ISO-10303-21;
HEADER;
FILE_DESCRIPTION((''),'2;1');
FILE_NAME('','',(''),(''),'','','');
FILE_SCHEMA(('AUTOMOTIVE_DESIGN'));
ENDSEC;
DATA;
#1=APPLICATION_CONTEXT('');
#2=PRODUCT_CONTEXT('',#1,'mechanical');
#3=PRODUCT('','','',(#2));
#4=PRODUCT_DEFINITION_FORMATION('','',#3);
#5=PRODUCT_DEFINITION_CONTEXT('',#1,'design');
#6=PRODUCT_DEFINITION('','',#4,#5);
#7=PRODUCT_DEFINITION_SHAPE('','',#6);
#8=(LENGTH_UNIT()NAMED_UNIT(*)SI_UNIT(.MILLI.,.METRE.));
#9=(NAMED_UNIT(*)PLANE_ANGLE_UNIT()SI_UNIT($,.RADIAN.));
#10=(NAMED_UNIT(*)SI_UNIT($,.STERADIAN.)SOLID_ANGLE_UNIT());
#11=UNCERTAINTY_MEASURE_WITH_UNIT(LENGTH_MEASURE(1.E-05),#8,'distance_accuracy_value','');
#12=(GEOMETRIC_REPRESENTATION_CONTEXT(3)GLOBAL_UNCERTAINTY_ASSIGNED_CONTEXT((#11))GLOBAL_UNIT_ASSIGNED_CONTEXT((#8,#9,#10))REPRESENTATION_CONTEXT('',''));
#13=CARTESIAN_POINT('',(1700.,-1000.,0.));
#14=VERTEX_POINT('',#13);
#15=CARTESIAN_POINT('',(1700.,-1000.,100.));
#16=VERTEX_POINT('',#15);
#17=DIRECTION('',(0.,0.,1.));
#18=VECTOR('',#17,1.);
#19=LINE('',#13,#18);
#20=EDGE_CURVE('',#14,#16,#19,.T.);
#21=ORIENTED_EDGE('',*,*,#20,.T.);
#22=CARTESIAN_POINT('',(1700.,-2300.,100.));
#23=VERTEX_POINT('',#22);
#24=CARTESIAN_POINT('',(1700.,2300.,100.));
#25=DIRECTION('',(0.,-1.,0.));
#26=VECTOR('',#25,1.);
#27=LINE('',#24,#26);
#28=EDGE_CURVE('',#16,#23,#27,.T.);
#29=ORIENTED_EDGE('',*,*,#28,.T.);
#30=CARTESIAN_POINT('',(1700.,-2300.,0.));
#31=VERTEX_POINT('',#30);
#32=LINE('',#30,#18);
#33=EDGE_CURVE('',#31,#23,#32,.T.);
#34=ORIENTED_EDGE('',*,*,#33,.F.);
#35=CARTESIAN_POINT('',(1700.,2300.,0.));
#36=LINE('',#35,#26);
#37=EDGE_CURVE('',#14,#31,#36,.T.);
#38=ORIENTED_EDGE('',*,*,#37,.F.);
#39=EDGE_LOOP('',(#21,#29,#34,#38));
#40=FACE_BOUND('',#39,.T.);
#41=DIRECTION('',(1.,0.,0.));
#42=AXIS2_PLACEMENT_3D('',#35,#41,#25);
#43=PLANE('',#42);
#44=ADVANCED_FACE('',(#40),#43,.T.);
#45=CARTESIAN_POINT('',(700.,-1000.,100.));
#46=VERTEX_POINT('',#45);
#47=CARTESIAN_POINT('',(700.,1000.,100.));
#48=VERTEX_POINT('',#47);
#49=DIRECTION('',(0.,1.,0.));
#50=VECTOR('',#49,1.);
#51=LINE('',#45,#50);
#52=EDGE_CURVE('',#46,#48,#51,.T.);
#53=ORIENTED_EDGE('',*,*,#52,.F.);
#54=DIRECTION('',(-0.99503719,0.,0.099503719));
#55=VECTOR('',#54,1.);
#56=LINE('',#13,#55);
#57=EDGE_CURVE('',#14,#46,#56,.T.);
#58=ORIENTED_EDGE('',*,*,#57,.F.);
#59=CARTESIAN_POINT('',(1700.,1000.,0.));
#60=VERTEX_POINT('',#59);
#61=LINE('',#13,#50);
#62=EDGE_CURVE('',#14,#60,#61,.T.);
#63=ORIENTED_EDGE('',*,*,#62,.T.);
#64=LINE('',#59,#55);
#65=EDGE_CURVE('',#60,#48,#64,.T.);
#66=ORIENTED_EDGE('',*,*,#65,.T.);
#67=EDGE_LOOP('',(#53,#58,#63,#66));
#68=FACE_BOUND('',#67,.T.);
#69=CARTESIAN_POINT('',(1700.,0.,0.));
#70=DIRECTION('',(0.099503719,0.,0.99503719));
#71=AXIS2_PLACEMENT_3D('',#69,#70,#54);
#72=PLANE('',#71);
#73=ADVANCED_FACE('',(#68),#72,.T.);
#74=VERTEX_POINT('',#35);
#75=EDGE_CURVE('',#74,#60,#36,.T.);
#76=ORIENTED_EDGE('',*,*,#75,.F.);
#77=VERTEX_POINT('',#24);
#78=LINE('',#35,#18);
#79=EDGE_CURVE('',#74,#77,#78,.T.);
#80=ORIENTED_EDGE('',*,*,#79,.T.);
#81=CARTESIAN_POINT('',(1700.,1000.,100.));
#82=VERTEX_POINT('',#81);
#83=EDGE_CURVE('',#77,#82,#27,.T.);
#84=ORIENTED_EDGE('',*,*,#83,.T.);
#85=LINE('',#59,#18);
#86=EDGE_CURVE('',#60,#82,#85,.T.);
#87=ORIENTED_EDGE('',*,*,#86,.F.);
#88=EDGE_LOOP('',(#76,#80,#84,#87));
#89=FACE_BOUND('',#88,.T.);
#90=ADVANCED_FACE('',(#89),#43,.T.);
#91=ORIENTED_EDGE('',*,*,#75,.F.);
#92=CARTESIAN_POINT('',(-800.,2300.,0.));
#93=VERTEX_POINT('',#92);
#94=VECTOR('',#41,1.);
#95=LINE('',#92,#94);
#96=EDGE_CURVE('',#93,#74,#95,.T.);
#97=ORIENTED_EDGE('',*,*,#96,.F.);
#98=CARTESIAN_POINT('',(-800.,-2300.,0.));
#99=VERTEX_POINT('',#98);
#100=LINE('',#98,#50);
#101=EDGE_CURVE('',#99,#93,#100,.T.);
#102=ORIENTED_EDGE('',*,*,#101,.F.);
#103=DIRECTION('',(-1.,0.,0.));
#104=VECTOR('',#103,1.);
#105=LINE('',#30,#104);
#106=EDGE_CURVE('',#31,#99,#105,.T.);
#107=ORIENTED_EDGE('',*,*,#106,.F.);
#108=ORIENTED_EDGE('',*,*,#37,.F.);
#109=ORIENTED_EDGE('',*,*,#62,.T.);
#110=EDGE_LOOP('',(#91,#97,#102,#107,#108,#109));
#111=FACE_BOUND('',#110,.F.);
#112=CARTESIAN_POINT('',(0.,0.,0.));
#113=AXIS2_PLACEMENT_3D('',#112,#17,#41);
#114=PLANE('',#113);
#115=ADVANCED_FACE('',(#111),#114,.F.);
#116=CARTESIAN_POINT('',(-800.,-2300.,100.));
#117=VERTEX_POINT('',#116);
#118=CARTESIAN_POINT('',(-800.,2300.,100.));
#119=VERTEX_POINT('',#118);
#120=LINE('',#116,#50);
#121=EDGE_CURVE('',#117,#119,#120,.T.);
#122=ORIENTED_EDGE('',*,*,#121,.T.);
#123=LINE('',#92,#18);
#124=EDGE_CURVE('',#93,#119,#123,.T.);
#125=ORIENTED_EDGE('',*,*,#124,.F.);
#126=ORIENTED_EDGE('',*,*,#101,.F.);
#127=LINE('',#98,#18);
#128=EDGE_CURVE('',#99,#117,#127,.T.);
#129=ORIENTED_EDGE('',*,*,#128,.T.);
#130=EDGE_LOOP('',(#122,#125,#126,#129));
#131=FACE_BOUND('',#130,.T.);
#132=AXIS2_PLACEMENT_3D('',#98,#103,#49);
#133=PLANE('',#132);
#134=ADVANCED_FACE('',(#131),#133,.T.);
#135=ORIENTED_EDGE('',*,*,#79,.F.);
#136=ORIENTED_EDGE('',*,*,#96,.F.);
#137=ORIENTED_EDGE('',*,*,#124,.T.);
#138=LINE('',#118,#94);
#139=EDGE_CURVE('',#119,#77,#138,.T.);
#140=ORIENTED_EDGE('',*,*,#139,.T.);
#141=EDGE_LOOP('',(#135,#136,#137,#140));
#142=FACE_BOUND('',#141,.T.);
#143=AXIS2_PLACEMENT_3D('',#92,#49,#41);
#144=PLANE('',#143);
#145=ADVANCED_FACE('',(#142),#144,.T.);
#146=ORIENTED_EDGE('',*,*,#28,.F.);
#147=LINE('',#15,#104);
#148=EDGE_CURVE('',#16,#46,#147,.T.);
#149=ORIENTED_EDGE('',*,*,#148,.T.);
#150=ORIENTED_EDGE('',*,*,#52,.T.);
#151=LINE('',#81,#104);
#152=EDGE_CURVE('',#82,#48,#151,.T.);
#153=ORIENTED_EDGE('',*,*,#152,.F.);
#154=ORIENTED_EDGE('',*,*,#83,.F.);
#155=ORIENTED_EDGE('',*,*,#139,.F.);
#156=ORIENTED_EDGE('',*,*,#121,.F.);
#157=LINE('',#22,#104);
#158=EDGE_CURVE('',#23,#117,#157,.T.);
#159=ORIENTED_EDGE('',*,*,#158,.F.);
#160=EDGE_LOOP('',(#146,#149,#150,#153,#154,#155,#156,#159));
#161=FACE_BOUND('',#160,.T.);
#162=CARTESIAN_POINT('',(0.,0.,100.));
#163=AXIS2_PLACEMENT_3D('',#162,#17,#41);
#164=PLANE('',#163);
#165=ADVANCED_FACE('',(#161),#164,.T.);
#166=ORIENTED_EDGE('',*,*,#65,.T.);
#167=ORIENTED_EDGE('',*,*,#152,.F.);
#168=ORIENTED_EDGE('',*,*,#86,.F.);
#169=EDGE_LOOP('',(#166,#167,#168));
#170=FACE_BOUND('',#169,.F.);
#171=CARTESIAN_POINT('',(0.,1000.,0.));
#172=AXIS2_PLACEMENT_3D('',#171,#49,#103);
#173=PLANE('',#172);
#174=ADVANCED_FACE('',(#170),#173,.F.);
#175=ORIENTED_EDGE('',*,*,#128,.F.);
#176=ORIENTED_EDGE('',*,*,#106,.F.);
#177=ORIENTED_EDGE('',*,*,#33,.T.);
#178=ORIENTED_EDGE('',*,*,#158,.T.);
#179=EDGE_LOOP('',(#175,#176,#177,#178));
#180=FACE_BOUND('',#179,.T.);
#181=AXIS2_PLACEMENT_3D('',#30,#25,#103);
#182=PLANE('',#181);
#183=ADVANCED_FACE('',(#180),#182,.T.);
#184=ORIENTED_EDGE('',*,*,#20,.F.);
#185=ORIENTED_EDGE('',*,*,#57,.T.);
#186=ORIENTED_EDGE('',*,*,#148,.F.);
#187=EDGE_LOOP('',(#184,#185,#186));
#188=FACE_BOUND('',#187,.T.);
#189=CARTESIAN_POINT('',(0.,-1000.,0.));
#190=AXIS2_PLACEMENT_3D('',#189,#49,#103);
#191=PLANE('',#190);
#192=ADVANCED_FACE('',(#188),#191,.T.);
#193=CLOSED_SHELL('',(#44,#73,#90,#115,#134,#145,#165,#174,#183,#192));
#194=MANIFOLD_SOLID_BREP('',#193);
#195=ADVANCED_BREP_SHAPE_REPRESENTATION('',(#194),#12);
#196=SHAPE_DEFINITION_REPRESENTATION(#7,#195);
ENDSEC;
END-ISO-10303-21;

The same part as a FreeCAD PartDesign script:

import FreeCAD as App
import Part
import Sketcher

doc = App.newDocument("Part")
body = doc.addObject("PartDesign::Body", "Body")

sketch1 = body.newObject("Sketcher::SketchObject", "Sketch")
sketch1.AttachmentSupport = (doc.getObject("XY_Plane"), [""])
sketch1.MapMode = "FlatFace"
sketch1.addGeometry(Part.LineSegment(App.Vector(1700, 2300, 0), App.Vector(-800, 2300, 0)), False)
sketch1.addGeometry(Part.LineSegment(App.Vector(-800, 2300, 0), App.Vector(-800, -2300, 0)), False)
sketch1.addGeometry(Part.LineSegment(App.Vector(-800, -2300, 0), App.Vector(1700, -2300, 0)), False)
sketch1.addGeometry(Part.LineSegment(App.Vector(1700, -2300, 0), App.Vector(1700, 2300, 0)), False)
sketch1.addConstraint(Sketcher.Constraint("Coincident", 0, 2, 1, 1))
sketch1.addConstraint(Sketcher.Constraint("Coincident", 1, 2, 2, 1))
sketch1.addConstraint(Sketcher.Constraint("Coincident", 2, 2, 3, 1))
sketch1.addConstraint(Sketcher.Constraint("Coincident", 3, 2, 0, 1))
sketch1.addConstraint(Sketcher.Constraint("Horizontal", 0))
sketch1.addConstraint(Sketcher.Constraint("Vertical", 1))
sketch1.addConstraint(Sketcher.Constraint("Horizontal", 2))
sketch1.addConstraint(Sketcher.Constraint("Vertical", 3))
sketch1.addConstraint(Sketcher.Constraint("DistanceX", 0, 2, 0, 1, 2500.0))
sketch1.addConstraint(Sketcher.Constraint("DistanceY", 1, 2, 1, 1, 4600.0))
sketch1.addConstraint(Sketcher.Constraint("DistanceX", 0, 2, -1, 1, 800.0))
sketch1.addConstraint(Sketcher.Constraint("DistanceY", -1, 1, 0, 2, 2300.0))
pad1 = body.newObject("PartDesign::Pad", "Pad")
pad1.Profile = sketch1
pad1.Length = 100

sketch2 = body.newObject("Sketcher::SketchObject", "Sketch001")
sketch2.AttachmentSupport = (doc.getObject("XZ_Plane"), [""])
sketch2.MapMode = "FlatFace"
sketch2.addGeometry(Part.LineSegment(App.Vector(1700, 100, 0), App.Vector(1700, 0, 0)), False)
sketch2.addGeometry(Part.LineSegment(App.Vector(1700, 0, 0), App.Vector(700, 100, 0)), False)
sketch2.addGeometry(Part.LineSegment(App.Vector(700, 100, 0), App.Vector(1700, 100, 0)), False)
sketch2.addConstraint(Sketcher.Constraint("Coincident", 0, 2, 1, 1))
sketch2.addConstraint(Sketcher.Constraint("Coincident", 1, 2, 2, 1))
sketch2.addConstraint(Sketcher.Constraint("Coincident", 2, 2, 0, 1))
sketch2.addConstraint(Sketcher.Constraint("Vertical", 0))
sketch2.addConstraint(Sketcher.Constraint("Horizontal", 2))
sketch2.addConstraint(Sketcher.Constraint("PointOnObject", 0, 2, -1))
sketch2.addConstraint(Sketcher.Constraint("DistanceX", 2, 1, 2, 2, 1000.0))
sketch2.addConstraint(Sketcher.Constraint("DistanceY", 0, 2, 0, 1, 100.0))
sketch2.addConstraint(Sketcher.Constraint("DistanceX", -1, 1, 0, 2, 1700.0))
pocket1 = body.newObject("PartDesign::Pocket", "Pocket")
pocket1.Profile = sketch2
pocket1.Length = 2000
pocket1.Midplane = True

doc.recompute()
